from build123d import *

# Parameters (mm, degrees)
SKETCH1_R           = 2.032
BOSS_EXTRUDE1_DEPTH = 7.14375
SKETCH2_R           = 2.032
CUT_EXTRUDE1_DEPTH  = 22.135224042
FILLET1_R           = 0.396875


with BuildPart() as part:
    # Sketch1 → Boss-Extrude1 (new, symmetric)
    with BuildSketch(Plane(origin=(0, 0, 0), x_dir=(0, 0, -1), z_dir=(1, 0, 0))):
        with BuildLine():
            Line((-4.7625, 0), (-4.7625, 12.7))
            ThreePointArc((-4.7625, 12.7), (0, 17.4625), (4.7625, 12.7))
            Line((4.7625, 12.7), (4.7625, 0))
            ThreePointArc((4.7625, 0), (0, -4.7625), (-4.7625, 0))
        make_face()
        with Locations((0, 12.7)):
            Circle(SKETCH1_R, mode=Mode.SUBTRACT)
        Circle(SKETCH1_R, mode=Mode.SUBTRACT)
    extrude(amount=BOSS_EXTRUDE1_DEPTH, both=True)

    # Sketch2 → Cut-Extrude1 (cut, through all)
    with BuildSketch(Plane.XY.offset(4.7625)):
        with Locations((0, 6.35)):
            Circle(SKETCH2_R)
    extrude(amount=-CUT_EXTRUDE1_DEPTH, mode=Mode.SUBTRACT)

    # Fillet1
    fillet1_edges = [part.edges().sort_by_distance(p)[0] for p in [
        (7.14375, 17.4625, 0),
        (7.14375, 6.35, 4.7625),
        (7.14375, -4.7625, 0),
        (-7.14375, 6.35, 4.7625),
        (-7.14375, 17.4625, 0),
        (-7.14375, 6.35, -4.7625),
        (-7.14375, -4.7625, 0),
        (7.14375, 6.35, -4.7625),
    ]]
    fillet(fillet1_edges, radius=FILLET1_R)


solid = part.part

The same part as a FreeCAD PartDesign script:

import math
import FreeCAD as App
import Part
import Sketcher
from FreeCAD import Vector
Q = App.Units.Quantity


def edges_at(feature, points):
    """Names of the edges that pass closest to the given points."""
    edges = feature.Shape.Edges
    near = lambda p: min(range(len(edges)), key=lambda i: edges[i].distToShape(Part.Vertex(*p))[0])
    return sorted({f"Edge{near(p) + 1}" for p in points})

doc = App.newDocument("Part")
body = doc.addObject("PartDesign::Body", "Body")

# Sketch on YZ plane
sketch1 = body.newObject("Sketcher::SketchObject", "Sketch")
sketch1.AttachmentSupport = (doc.getObject("YZ_Plane"), [""])
sketch1.MapMode = "FlatFace"
sketch1.addGeometry(Part.LineSegment(Vector(12.7, 4.8, 0), Vector(0, 4.8, 0)), False)
sketch1.addGeometry(Part.ArcOfCircle(Part.Circle(Vector(0, 0, 0), Vector(0, 0, 1), 4.8), math.radians(90), math.radians(270)), False)
sketch1.addGeometry(Part.LineSegment(Vector(0, -4.8, 0), Vector(12.7, -4.8, 0)), False)
sketch1.addGeometry(Part.ArcOfCircle(Part.Circle(Vector(12.7, 0, 0), Vector(0, 0, 1), 4.8), math.radians(-90), math.radians(90)), False)
sketch1.addGeometry(Part.Circle(Vector(0, 0, 0), Vector(0, 0, 1), 2), False)
sketch1.addGeometry(Part.Circle(Vector(12.7, 0, 0), Vector(0, 0, 1), 2), False)
sketch1.addConstraint(Sketcher.Constraint("Tangent", 0, 2, 1, 1))
sketch1.addConstraint(Sketcher.Constraint("Tangent", 1, 2, 2, 1))
sketch1.addConstraint(Sketcher.Constraint("Tangent", 2, 2, 3, 1))
sketch1.addConstraint(Sketcher.Constraint("Tangent", 3, 2, 0, 1))
sketch1.addConstraint(Sketcher.Constraint("Horizontal", 0))
sketch1.addConstraint(Sketcher.Constraint("Horizontal", 2))
sketch1.addConstraint(Sketcher.Constraint("Coincident", 1, 3, -1, 1))
sketch1.addConstraint(Sketcher.Constraint("Coincident", 4, 3, -1, 1))
sketch1.addConstraint(Sketcher.Constraint("Coincident", 5, 3, 3, 3))
sketch1.addConstraint(Sketcher.Constraint("Equal", 4, 5))
sketch1.addConstraint(Sketcher.Constraint("Diameter", 4, Q("0.16 in")))
sketch1.addConstraint(Sketcher.Constraint("DistanceX", 0, 2, 0, 1, Q("0.5 in")))
sketch1.addConstraint(Sketcher.Constraint("Radius", 1, Q("0.1875 in")))
pad1 = body.newObject("PartDesign::Pad", "Pad")
pad1.Profile = sketch1
pad1.Length = Q("0.5625 in")
pad1.Midplane = True

# Sketch on XY plane
sketch2 = body.newObject("Sketcher::SketchObject", "Sketch001")
sketch2.AttachmentSupport = (doc.getObject("XY_Plane"), [""])
sketch2.MapMode = "FlatFace"
sketch2.AttachmentOffset = App.Placement(Vector(0, 0, 0.1875 * 25.4), App.Rotation())
sketch2.addGeometry(Part.Circle(Vector(0, 6.3, 0), Vector(0, 0, 1), 2), False)
sketch2.addConstraint(Sketcher.Constraint("PointOnObject", 0, 3, -2))
sketch2.addConstraint(Sketcher.Constraint("Diameter", 0, Q("0.16 in")))
sketch2.addConstraint(Sketcher.Constraint("DistanceY", -1, 1, 0, 3, Q("0.25 in")))
pocket1 = body.newObject("PartDesign::Pocket", "Pocket")
pocket1.Profile = sketch2
pocket1.Type = "ThroughAll"
doc.recompute()

fillet = body.newObject("PartDesign::Fillet", "Fillet")
fillet.Base = (pocket1, edges_at(pocket1, [
    (7.144, 17.462, 0),
    (7.144, 6.35, 4.763),
    (7.144, -4.763, 0),
    (-7.144, 6.35, 4.763),
    (-7.144, 17.462, 0),
    (-7.144, 6.35, -4.763),
    (-7.144, -4.763, 0),
    (7.144, 6.35, -4.763),
]))
fillet.Radius = Q("0.015625 in")

doc.recompute()
